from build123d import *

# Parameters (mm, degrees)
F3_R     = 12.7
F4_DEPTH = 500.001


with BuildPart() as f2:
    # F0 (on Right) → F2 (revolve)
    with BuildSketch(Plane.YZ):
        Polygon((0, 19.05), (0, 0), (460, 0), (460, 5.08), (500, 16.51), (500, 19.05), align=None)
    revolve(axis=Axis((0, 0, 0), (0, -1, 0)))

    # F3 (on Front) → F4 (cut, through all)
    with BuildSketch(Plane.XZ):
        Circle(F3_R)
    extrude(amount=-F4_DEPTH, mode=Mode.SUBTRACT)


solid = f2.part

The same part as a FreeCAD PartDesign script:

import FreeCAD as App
import Part
import Sketcher
from FreeCAD import Vector
Q = App.Units.Quantity

doc = App.newDocument("Part")
body = doc.addObject("PartDesign::Body", "Body")

# Sketch on YZ plane
sketch1 = body.newObject("Sketcher::SketchObject", "Sketch")
sketch1.AttachmentSupport = (doc.getObject("YZ_Plane"), [""])
sketch1.MapMode = "FlatFace"
sketch1.addGeometry([
    Part.LineSegment(Vector(0, 19.1, 0), Vector(0, 0, 0)),  # 0
    Part.LineSegment(Vector(0, 0, 0), Vector(460, 0, 0)),  # 1
    Part.LineSegment(Vector(460, 0, 0), Vector(460, 5.1, 0)),  # 2
    Part.LineSegment(Vector(460, 5.1, 0), Vector(500, 16.5, 0)),  # 3
    Part.LineSegment(Vector(500, 16.5, 0), Vector(500, 19.1, 0)),  # 4
    Part.LineSegment(Vector(500, 19.1, 0), Vector(0, 19.1, 0)),  # 5
], False)
sketch1.addConstraint([
    Sketcher.Constraint("Coincident", 0, 2, 1, 1),
    Sketcher.Constraint("Coincident", 1, 2, 2, 1),
    Sketcher.Constraint("Coincident", 2, 2, 3, 1),
    Sketcher.Constraint("Coincident", 3, 2, 4, 1),
    Sketcher.Constraint("Coincident", 4, 2, 5, 1),
    Sketcher.Constraint("Coincident", 5, 2, 0, 1),
    Sketcher.Constraint("Vertical", 0),
    Sketcher.Constraint("Horizontal", 1),
    Sketcher.Constraint("Vertical", 2),
    Sketcher.Constraint("Vertical", 4),
    Sketcher.Constraint("Horizontal", 5),
    Sketcher.Constraint("Coincident", 0, 2, -1, 1),
    Sketcher.Constraint("DistanceY", 2, 1, 2, 2, Q("0.2 in")),
    Sketcher.Constraint("DistanceY", 4, 1, 4, 2, Q("0.1 in")),
    Sketcher.Constraint("DistanceY", 0, 2, 0, 1, Q("0.75 in")),
    Sketcher.Constraint("DistanceX", 1, 1, 1, 2, 460.0),
    Sketcher.Constraint("DistanceX", 5, 2, 5, 1, 500.0),
])
revolution = body.newObject("PartDesign::Revolution", "Revolution")
revolution.Profile = sketch1
revolution.ReferenceAxis = (sketch1, ["H_Axis"])
revolution.Angle = 360

# Sketch on XZ plane
sketch2 = body.newObject("Sketcher::SketchObject", "Sketch001")
sketch2.AttachmentSupport = (doc.getObject("XZ_Plane"), [""])
sketch2.MapMode = "FlatFace"
sketch2.addGeometry(Part.Circle(Vector(0, 0, 0), Vector(0, 0, 1), 13), False)
sketch2.addConstraint([
    Sketcher.Constraint("Coincident", 0, 3, -1, 1),
    Sketcher.Constraint("Diameter", 0, Q("1 in")),
])
pocket1 = body.newObject("PartDesign::Pocket", "Pocket")
pocket1.Profile = sketch2
pocket1.Type = "ThroughAll"

doc.recompute()
